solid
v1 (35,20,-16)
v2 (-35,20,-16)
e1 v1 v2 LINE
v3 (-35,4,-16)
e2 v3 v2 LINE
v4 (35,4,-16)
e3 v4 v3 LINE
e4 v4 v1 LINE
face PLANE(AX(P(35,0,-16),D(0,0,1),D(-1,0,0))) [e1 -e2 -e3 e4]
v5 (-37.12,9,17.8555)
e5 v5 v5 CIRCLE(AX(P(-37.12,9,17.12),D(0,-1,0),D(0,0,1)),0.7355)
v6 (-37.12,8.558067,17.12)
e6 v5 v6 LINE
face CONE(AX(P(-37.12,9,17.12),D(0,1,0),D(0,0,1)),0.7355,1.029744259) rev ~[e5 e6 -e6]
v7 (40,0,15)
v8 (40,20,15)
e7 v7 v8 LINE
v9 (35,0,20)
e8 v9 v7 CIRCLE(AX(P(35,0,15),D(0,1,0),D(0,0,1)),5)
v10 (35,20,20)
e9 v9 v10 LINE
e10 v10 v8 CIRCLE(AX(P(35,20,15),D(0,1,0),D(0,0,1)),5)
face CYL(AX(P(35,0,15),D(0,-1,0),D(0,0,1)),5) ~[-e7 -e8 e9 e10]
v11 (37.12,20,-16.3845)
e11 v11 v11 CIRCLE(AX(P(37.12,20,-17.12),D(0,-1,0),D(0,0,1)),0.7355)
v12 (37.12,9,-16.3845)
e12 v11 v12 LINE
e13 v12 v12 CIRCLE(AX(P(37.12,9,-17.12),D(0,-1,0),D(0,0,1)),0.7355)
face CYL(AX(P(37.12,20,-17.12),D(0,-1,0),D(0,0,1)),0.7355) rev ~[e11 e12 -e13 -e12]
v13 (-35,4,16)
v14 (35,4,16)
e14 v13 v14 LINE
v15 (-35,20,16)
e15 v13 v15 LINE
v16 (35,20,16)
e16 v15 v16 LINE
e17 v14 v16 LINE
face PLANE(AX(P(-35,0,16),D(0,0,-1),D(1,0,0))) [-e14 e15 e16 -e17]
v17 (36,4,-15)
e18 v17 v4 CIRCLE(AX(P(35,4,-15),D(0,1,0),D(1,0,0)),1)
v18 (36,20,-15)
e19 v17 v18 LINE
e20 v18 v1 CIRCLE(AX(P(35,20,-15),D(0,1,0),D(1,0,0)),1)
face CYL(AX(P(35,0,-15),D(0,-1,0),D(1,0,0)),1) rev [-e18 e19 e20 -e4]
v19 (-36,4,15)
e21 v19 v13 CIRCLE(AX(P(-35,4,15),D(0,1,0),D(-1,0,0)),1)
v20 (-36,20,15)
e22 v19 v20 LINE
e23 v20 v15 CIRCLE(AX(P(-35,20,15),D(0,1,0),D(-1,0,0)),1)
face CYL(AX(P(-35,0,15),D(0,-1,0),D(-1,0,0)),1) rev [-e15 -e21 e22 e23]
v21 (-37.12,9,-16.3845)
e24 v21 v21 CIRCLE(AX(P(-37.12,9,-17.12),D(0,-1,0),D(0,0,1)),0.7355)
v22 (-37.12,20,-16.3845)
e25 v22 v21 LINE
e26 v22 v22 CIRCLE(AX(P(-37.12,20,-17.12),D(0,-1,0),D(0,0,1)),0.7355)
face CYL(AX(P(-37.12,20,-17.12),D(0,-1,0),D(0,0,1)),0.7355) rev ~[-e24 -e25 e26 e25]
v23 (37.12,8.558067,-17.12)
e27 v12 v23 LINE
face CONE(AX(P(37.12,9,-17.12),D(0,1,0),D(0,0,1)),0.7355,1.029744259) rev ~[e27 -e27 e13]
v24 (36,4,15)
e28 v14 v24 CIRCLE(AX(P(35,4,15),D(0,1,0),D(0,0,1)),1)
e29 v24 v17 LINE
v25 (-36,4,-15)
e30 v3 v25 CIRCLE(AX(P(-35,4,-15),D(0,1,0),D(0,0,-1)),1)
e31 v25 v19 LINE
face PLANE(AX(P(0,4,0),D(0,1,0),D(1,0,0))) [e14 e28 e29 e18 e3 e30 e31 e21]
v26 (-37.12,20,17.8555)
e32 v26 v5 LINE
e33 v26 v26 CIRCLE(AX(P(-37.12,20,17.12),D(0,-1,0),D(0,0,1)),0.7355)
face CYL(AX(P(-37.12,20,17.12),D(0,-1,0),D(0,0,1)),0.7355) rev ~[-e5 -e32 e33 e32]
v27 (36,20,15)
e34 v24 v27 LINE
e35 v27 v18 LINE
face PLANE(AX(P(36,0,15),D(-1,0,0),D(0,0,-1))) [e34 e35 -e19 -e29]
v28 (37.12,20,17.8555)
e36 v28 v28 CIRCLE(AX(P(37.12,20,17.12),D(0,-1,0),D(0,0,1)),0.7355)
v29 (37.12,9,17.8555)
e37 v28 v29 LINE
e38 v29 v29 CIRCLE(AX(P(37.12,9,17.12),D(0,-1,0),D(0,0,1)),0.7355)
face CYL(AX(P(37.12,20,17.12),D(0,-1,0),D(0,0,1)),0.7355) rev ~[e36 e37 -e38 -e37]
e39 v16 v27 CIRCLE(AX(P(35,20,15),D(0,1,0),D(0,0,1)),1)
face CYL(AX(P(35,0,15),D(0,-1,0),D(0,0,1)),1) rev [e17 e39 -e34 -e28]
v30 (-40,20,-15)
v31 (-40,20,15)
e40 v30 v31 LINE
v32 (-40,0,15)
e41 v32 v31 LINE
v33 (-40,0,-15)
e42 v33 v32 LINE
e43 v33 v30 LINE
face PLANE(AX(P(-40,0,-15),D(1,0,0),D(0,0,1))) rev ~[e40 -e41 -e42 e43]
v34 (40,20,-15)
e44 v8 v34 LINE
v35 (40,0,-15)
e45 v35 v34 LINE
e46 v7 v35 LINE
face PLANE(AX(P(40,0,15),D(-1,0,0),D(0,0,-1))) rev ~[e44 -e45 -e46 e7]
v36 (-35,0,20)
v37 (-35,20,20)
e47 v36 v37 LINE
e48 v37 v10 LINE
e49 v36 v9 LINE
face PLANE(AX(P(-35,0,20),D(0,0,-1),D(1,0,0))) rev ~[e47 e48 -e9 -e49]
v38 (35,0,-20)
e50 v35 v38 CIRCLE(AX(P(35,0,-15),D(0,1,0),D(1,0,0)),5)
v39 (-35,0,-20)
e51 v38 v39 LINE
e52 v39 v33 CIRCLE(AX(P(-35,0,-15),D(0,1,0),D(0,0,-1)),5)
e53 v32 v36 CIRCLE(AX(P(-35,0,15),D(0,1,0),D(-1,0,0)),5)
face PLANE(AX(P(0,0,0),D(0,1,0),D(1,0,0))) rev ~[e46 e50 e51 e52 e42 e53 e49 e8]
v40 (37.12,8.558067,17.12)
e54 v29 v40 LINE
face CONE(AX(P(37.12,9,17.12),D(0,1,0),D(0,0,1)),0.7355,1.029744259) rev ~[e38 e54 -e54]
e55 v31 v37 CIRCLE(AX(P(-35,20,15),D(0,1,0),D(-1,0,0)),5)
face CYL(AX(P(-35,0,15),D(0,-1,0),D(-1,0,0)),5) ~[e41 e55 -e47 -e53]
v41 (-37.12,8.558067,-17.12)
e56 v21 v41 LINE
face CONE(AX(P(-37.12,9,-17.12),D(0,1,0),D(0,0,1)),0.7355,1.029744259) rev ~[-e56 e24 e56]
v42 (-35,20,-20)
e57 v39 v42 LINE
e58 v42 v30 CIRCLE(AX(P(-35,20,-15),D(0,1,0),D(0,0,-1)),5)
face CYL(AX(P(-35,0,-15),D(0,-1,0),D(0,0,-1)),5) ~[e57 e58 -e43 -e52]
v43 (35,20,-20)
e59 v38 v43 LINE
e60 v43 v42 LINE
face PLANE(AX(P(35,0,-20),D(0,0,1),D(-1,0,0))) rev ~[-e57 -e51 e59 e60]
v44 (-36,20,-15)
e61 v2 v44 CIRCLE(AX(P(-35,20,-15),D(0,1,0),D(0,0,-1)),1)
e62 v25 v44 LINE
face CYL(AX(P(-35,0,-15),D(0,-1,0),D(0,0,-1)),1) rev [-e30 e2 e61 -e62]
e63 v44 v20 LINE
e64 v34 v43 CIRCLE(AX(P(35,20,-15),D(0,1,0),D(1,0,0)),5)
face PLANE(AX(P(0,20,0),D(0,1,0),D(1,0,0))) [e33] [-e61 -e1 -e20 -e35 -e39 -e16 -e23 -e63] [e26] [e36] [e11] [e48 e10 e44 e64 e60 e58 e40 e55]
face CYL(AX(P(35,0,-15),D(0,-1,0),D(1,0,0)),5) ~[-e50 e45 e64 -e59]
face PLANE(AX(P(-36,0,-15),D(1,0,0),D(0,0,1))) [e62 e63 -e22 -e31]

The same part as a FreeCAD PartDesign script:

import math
import FreeCAD as App
import Part
import Sketcher

V = App.Vector
Q = App.Units.Quantity

doc = App.newDocument("Part")
body = doc.addObject("PartDesign::Body", "Body")

# Sketch on XZ plane
sketch1 = doc.addObject("Sketcher::SketchObject", "Sketch")
body.addObject(sketch1)
sketch1.AttachmentSupport = (doc.XZ_Plane, [""])
sketch1.MapMode = "FlatFace"
sketch1.addGeometry([
    Part.ArcOfCircle(Part.Circle(V(-35, -15, 0), V(0, 0, 1), 1), math.radians(180), math.radians(270)),  # 0
    Part.LineSegment(V(-36, -15, 0), V(-36, 15, 0)),  # 1
    Part.ArcOfCircle(Part.Circle(V(-35, 15, 0), V(0, 0, 1), 1), math.radians(90), math.radians(180)),  # 2
    Part.LineSegment(V(-35, 16, 0), V(35, 16, 0)),  # 3
    Part.ArcOfCircle(Part.Circle(V(35, 15, 0), V(0, 0, 1), 1), math.radians(0), math.radians(90)),  # 4
    Part.LineSegment(V(36, 15, 0), V(36, -15, 0)),  # 5
    Part.ArcOfCircle(Part.Circle(V(35, -15, 0), V(0, 0, 1), 1), math.radians(-90), math.radians(0)),  # 6
    Part.LineSegment(V(35, -16, 0), V(-35, -16, 0)),  # 7
], False)
sketch1.addConstraint([
    Sketcher.Constraint("Tangent", 0, 1, 1, 1),
    Sketcher.Constraint("Tangent", 1, 2, 2, 2),
    Sketcher.Constraint("Tangent", 2, 1, 3, 1),
    Sketcher.Constraint("Tangent", 3, 2, 4, 2),
    Sketcher.Constraint("Tangent", 4, 1, 5, 1),
    Sketcher.Constraint("Tangent", 5, 2, 6, 2),
    Sketcher.Constraint("Tangent", 6, 1, 7, 1),
    Sketcher.Constraint("Tangent", 7, 2, 0, 2),
    Sketcher.Constraint("Vertical", 1),
    Sketcher.Constraint("Horizontal", 3),
    Sketcher.Constraint("Vertical", 5),
    Sketcher.Constraint("Horizontal", 7),
    Sketcher.Constraint("Equal", 0, 2),
    Sketcher.Constraint("Equal", 2, 4),
    Sketcher.Constraint("Equal", 4, 6),
    Sketcher.Constraint("Symmetric", 0, 3, 4, 3, -1, 1),
    Sketcher.Constraint("Radius", 0, Q("1 mm")),
    Sketcher.Constraint("DistanceX", 3, 1, 3, 2, Q("70 mm")),
    Sketcher.Constraint("DistanceY", 1, 1, 1, 2, Q("30 mm")),
])
pad1 = doc.addObject("PartDesign::Pad", "Pad")
body.addObject(pad1)
pad1.Profile = sketch1
pad1.Length = 4
pad1.Reversed = True

# Sketch on XZ plane
sketch2 = doc.addObject("Sketcher::SketchObject", "Sketch001")
body.addObject(sketch2)
sketch2.AttachmentSupport = (doc.XZ_Plane, [""])
sketch2.MapMode = "FlatFace"
sketch2.addGeometry([
    Part.ArcOfCircle(Part.Circle(V(35, -15, 0), V(0, 0, 1), 5), math.radians(-90), math.radians(0)),  # 0
    Part.LineSegment(V(35, -20, 0), V(-35, -20, 0)),  # 1
    Part.ArcOfCircle(Part.Circle(V(-35, -15, 0), V(0, 0, 1), 5), math.radians(180), math.radians(270)),  # 2
    Part.LineSegment(V(-40, -15, 0), V(-40, 15, 0)),  # 3
    Part.ArcOfCircle(Part.Circle(V(-35, 15, 0), V(0, 0, 1), 5), math.radians(90), math.radians(180)),  # 4
    Part.LineSegment(V(-35, 20, 0), V(35, 20, 0)),  # 5
    Part.ArcOfCircle(Part.Circle(V(35, 15, 0), V(0, 0, 1), 5), math.radians(0), math.radians(90)),  # 6
    Part.LineSegment(V(40, 15, 0), V(40, -15, 0)),  # 7
    Part.LineSegment(V(-36, 15, 0), V(-36, -15, 0)),  # 8
    Part.ArcOfCircle(Part.Circle(V(-35, -15, 0), V(0, 0, 1), 1), math.radians(180), math.radians(270)),  # 9
    Part.LineSegment(V(-35, -16, 0), V(35, -16, 0)),  # 10
    Part.ArcOfCircle(Part.Circle(V(35, -15, 0), V(0, 0, 1), 1), math.radians(-90), math.radians(0)),  # 11
    Part.LineSegment(V(36, -15, 0), V(36, 15, 0)),  # 12
    Part.ArcOfCircle(Part.Circle(V(35, 15, 0), V(0, 0, 1), 1), math.radians(0), math.radians(90)),  # 13
    Part.LineSegment(V(35, 16, 0), V(-35, 16, 0)),  # 14
    Part.ArcOfCircle(Part.Circle(V(-35, 15, 0), V(0, 0, 1), 1), math.radians(90), math.radians(180)),  # 15
], False)
sketch2.addConstraint([
    Sketcher.Constraint("Tangent", 0, 1, 1, 1),
    Sketcher.Constraint("Tangent", 1, 2, 2, 2),
    Sketcher.Constraint("Tangent", 2, 1, 3, 1),
    Sketcher.Constraint("Tangent", 3, 2, 4, 2),
    Sketcher.Constraint("Tangent", 4, 1, 5, 1),
    Sketcher.Constraint("Tangent", 5, 2, 6, 2),
    Sketcher.Constraint("Tangent", 6, 1, 7, 1),
    Sketcher.Constraint("Tangent", 7, 2, 0, 2),
    Sketcher.Constraint("Tangent", 8, 2, 9, 1),
    Sketcher.Constraint("Tangent", 9, 2, 10, 1),
    Sketcher.Constraint("Tangent", 10, 2, 11, 1),
    Sketcher.Constraint("Tangent", 11, 2, 12, 1),
    Sketcher.Constraint("Tangent", 12, 2, 13, 1),
    Sketcher.Constraint("Tangent", 13, 2, 14, 1),
    Sketcher.Constraint("Tangent", 14, 2, 15, 1),
    Sketcher.Constraint("Tangent", 15, 2, 8, 1),
    Sketcher.Constraint("Horizontal", 1),
    Sketcher.Constraint("Vertical", 3),
    Sketcher.Constraint("Horizontal", 5),
    Sketcher.Constraint("Vertical", 7),
    Sketcher.Constraint("Vertical", 8),
    Sketcher.Constraint("Horizontal", 10),
    Sketcher.Constraint("Vertical", 12),
    Sketcher.Constraint("Horizontal", 14),
    Sketcher.Constraint("Coincident", 9, 3, 2, 3),
    Sketcher.Constraint("Coincident", 11, 3, 0, 3),
    Sketcher.Constraint("Coincident", 13, 3, 6, 3),
    Sketcher.Constraint("Equal", 0, 2),
    Sketcher.Constraint("Equal", 2, 4),
    Sketcher.Constraint("Equal", 4, 6),
    Sketcher.Constraint("Equal", 13, 15),
    Sketcher.Constraint("Symmetric", 0, 3, 4, 3, -1, 1),
    Sketcher.Constraint("Radius", 0, Q("5 mm")),
    Sketcher.Constraint("DistanceX", 2, 1, -1, 1, Q("40 mm")),
    Sketcher.Constraint("Radius", 9, Q("1 mm")),
    Sketcher.Constraint("DistanceY", 0, 1, 5, 2, Q("40 mm")),
])
pad2 = doc.addObject("PartDesign::Pad", "Pad001")
body.addObject(pad2)
pad2.Profile = sketch2
pad2.Length = 20
pad2.Reversed = True

# Sketch on XZ plane
sketch3 = doc.addObject("Sketcher::SketchObject", "Sketch002")
body.addObject(sketch3)
sketch3.AttachmentSupport = (doc.XZ_Plane, [""])
sketch3.MapMode = "FlatFace"
sketch3.AttachmentOffset = App.Placement(V(0, 0, -20), App.Rotation())
sketch3.addGeometry([
    Part.Circle(V(37.12, 17.12, 0), V(0, 0, 1), 0.7355),
    Part.Circle(V(-37.12, 17.12, 0), V(0, 0, 1), 0.7355),
    Part.Circle(V(-37.12, -17.12, 0), V(0, 0, 1), 0.7355),
    Part.Circle(V(37.12, -17.12, 0), V(0, 0, 1), 0.7355),
], False)
sketch3.addConstraint([
    Sketcher.Constraint("Equal", 0, 1),
    Sketcher.Constraint("Equal", 1, 2),
    Sketcher.Constraint("Equal", 2, 3),
    Sketcher.Constraint("Symmetric", 0, 3, 2, 3, -1, 1),
    Sketcher.Constraint("Symmetric", 1, 3, 3, 3, -1, 1),
    Sketcher.Constraint("Symmetric", 0, 3, 1, 3, -2),
    Sketcher.Constraint("Diameter", 0, Q("1.471 mm")),
    Sketcher.Constraint("DistanceX", -1, 1, 0, 3, Q("37.12 mm")),
    Sketcher.Constraint("DistanceY", -1, 1, 0, 3, Q("17.12 mm")),
])
doc.recompute()
hole = doc.addObject("PartDesign::Hole", "Hole")
body.addObject(hole)
hole.Profile = sketch3
hole.ThreadType = "None"
hole.Diameter = 1.471
hole.DepthType = "Dimension"
hole.Depth = 11
hole.DrillPoint = "Angled"
hole.DrillPointAngle = 118
hole.Reversed = True

doc.recompute()
